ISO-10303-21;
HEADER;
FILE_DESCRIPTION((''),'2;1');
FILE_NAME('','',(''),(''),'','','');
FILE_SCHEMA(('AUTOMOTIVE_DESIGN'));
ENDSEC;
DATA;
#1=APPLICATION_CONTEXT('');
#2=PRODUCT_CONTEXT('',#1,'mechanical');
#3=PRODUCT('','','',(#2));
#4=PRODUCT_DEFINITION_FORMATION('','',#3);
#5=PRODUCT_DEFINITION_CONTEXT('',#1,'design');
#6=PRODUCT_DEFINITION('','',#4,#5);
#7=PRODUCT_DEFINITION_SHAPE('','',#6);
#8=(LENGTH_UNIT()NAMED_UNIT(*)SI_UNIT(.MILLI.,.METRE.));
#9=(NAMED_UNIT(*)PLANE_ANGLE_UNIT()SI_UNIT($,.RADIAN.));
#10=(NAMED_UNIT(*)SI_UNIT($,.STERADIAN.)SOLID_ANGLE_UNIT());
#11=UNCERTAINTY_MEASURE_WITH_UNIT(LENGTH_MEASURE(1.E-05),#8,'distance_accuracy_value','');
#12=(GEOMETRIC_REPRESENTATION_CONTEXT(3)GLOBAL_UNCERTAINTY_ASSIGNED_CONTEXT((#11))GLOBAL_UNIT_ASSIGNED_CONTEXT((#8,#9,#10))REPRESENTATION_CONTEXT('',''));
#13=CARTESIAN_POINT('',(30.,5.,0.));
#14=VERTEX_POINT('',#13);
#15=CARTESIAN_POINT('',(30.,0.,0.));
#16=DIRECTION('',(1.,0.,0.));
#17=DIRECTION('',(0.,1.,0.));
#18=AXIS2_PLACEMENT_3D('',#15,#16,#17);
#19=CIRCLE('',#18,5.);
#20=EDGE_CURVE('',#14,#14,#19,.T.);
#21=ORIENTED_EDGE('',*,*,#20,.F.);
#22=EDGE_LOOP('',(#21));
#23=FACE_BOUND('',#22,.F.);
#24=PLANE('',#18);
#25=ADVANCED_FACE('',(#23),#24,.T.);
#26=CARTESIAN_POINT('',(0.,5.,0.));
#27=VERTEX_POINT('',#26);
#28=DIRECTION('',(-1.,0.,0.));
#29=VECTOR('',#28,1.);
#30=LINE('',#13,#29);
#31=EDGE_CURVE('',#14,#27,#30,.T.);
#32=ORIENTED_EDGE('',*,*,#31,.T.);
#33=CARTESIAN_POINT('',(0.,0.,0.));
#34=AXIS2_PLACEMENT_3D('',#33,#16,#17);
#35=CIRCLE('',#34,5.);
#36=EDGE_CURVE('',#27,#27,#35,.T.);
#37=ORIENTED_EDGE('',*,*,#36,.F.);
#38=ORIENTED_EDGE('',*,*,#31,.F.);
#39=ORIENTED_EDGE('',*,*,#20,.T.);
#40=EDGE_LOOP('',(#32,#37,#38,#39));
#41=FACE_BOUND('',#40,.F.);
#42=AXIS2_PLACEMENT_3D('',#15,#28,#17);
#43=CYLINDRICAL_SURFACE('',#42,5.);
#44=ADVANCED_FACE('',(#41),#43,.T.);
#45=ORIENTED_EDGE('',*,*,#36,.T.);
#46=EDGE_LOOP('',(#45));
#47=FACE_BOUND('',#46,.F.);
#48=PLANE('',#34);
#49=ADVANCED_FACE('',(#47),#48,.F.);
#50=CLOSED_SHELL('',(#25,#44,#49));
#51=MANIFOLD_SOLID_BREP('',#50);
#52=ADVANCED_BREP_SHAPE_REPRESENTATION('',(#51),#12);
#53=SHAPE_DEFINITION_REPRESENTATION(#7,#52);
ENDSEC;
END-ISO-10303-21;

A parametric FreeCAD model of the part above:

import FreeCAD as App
import Part
import Sketcher

doc = App.newDocument("Part")
body = doc.addObject("PartDesign::Body", "Body")

# Sketch on XY plane
sketch1 = doc.addObject("Sketcher::SketchObject", "Sketch")
body.addObject(sketch1)
sketch1.AttachmentSupport = (doc.XY_Plane, [""])
sketch1.MapMode = "FlatFace"
sketch1.addGeometry([
    Part.LineSegment(App.Vector(30, 0, 0), App.Vector(30, 5, 0)),
    Part.LineSegment(App.Vector(30, 5, 0), App.Vector(0, 5, 0)),
    Part.LineSegment(App.Vector(0, 5, 0), App.Vector(0, 0, 0)),
    Part.LineSegment(App.Vector(0, 0, 0), App.Vector(30, 0, 0)),
], False)
sketch1.addConstraint([
    Sketcher.Constraint("Coincident", 0, 2, 1, 1),
    Sketcher.Constraint("Coincident", 1, 2, 2, 1),
    Sketcher.Constraint("Coincident", 2, 2, 3, 1),
    Sketcher.Constraint("Coincident", 3, 2, 0, 1),
    Sketcher.Constraint("Vertical", 0),
    Sketcher.Constraint("Horizontal", 1),
    Sketcher.Constraint("Vertical", 2),
    Sketcher.Constraint("Horizontal", 3),
    Sketcher.Constraint("Coincident", 2, 2, -1, 1),
    Sketcher.Constraint("DistanceX", 1, 2, 1, 1, 30.0),
    Sketcher.Constraint("DistanceY", 0, 1, 0, 2, 5.0),
])
revolution = doc.addObject("PartDesign::Revolution", "Revolution")
body.addObject(revolution)
revolution.Profile = sketch1
revolution.ReferenceAxis = (sketch1, ["H_Axis"])
revolution.Angle = 360

doc.recompute()
